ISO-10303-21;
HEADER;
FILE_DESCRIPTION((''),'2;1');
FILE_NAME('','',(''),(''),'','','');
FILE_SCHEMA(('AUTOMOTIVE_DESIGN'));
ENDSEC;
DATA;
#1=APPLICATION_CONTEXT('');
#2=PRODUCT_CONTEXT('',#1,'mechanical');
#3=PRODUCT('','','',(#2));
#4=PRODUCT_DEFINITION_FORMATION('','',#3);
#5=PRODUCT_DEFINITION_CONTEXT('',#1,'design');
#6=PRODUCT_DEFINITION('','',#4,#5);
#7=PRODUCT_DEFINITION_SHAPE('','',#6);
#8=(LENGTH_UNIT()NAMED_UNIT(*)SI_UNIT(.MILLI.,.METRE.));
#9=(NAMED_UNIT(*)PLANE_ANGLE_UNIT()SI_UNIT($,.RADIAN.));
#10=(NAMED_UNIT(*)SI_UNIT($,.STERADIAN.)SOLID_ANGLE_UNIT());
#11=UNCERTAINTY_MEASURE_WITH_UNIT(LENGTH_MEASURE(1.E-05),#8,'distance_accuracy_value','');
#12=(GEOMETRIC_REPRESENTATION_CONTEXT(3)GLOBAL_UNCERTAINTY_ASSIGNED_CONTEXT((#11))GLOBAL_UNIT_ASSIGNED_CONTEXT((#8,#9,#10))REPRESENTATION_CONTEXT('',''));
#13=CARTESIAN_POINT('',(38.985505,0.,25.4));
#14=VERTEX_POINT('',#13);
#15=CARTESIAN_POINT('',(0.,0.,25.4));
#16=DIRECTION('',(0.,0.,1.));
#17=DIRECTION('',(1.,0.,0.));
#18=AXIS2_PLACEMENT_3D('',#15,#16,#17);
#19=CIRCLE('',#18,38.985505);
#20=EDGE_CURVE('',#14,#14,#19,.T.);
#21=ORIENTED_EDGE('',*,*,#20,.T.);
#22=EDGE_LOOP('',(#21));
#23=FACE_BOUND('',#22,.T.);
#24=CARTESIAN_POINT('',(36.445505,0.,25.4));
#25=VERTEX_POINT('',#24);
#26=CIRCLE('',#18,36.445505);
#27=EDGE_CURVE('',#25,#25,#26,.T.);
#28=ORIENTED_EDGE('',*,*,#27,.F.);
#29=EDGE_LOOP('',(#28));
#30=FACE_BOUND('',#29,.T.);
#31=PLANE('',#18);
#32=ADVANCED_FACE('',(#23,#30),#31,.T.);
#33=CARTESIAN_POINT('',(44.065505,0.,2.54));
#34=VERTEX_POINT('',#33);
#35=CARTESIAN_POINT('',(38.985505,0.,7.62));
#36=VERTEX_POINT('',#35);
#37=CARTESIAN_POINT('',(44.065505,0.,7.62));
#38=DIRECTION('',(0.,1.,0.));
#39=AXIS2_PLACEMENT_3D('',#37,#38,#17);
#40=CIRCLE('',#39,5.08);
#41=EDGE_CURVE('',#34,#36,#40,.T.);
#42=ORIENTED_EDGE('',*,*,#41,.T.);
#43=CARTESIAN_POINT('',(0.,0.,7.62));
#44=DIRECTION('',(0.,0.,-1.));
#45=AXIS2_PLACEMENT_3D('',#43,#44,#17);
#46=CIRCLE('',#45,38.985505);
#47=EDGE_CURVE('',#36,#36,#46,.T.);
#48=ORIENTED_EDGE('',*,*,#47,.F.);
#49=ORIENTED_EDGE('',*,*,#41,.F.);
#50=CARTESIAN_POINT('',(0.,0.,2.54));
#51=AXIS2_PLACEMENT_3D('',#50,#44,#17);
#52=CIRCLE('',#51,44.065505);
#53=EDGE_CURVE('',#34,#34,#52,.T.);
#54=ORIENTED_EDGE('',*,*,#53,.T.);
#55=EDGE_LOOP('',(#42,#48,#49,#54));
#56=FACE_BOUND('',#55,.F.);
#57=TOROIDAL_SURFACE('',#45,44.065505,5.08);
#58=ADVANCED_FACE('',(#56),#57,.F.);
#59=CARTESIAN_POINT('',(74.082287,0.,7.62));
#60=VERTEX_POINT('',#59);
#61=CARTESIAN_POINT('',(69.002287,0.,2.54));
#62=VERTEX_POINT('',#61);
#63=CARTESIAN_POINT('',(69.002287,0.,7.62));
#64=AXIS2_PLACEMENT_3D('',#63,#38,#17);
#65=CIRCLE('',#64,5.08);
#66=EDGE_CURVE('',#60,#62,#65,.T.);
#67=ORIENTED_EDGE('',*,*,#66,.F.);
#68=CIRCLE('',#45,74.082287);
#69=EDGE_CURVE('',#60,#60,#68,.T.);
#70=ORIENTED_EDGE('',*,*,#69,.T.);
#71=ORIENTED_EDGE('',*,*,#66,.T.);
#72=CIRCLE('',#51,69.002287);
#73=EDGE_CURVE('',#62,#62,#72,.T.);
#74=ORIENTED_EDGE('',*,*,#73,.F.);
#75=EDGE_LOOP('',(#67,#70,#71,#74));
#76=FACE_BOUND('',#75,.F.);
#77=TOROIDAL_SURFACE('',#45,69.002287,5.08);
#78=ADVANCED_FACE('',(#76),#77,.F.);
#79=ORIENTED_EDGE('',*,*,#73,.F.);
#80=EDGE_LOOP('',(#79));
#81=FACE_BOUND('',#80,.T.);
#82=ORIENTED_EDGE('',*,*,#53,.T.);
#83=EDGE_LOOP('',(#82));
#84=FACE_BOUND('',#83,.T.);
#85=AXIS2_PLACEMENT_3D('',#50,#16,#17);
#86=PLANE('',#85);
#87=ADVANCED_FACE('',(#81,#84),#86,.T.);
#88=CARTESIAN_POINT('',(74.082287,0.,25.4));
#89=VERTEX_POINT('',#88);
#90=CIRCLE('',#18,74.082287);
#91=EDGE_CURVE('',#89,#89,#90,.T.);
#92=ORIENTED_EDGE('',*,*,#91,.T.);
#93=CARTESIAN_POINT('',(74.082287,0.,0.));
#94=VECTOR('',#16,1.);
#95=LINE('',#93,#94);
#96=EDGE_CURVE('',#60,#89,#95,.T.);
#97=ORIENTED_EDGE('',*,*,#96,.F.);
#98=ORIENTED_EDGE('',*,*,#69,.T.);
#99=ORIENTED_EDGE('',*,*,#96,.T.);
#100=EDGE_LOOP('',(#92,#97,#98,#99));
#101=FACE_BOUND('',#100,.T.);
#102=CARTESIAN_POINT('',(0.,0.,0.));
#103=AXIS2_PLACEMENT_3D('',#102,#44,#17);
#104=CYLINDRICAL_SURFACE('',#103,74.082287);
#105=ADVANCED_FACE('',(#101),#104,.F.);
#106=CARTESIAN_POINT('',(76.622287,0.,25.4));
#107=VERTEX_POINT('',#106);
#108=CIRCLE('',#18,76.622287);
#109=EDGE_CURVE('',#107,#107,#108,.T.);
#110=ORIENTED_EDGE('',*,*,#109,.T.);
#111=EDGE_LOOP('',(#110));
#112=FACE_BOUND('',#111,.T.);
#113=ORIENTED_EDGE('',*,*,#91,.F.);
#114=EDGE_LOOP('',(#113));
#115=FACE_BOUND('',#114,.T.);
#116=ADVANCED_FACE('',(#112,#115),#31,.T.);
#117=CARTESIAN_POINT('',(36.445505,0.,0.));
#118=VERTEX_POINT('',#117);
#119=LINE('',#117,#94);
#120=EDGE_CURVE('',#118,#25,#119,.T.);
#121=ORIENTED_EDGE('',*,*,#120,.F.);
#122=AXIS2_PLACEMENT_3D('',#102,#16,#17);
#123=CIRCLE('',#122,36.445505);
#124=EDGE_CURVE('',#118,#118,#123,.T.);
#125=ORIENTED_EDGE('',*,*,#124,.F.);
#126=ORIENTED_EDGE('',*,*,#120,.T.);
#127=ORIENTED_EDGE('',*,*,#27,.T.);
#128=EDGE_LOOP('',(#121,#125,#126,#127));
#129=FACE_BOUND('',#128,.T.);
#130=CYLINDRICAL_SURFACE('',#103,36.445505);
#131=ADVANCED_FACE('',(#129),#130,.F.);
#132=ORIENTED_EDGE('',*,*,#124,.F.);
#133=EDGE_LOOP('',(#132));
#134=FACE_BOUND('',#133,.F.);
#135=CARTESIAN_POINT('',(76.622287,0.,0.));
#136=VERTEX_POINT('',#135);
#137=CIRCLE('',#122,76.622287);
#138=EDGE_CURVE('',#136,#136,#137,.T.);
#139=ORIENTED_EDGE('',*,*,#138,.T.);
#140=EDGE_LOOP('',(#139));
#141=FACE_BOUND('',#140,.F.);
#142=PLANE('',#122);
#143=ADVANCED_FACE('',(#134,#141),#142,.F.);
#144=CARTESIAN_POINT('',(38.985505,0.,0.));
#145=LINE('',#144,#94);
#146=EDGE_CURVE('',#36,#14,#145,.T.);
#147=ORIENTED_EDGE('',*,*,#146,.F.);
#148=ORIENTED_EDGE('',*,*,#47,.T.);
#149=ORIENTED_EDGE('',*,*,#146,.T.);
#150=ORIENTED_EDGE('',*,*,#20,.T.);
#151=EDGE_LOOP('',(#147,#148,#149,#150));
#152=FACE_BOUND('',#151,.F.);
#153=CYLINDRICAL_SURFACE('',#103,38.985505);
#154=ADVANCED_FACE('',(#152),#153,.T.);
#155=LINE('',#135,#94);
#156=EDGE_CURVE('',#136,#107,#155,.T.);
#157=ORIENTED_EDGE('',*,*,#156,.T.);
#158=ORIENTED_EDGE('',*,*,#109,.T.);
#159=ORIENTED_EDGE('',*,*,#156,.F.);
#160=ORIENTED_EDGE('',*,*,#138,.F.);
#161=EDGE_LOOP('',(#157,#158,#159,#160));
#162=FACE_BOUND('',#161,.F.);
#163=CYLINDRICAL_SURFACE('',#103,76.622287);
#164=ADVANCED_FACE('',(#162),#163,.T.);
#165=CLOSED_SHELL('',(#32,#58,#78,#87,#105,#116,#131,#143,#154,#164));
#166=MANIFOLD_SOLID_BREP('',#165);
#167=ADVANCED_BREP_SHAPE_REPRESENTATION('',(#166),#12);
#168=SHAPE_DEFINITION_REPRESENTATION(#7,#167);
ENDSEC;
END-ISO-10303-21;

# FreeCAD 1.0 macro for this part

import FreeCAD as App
import Part
import Sketcher

V = App.Vector


def edges_at(feature, points):
    """Names of the edges that pass closest to the given points."""
    edges = feature.Shape.Edges
    near = lambda p: min(range(len(edges)), key=lambda i: edges[i].distToShape(Part.Vertex(*p))[0])
    return sorted({f"Edge{near(p) + 1}" for p in points})


def faces_at(feature, points):
    """Names of the faces that lie closest to the given points."""
    faces = feature.Shape.Faces
    near = lambda p: min(range(len(faces)), key=lambda i: faces[i].distToShape(Part.Vertex(*p))[0])
    return sorted({f"Face{near(p) + 1}" for p in points})

doc = App.newDocument("Part")
params = doc.addObject("Spreadsheet::Sheet", "Params")
for row, (alias, value) in enumerate([
    ("pad1_length", "1 in"),
    ("thickness_wall", "0.1 in"),
    ("fillet_radius", "0.2 in"),
], start=1):
    params.set(f"A{row}", alias)
    params.set(f"B{row}", "=" + value)
    params.setAlias(f"B{row}", alias)

body = doc.addObject("PartDesign::Body", "Body")

# Sketch on XY plane
sketch1 = body.newObject("Sketcher::SketchObject", "Sketch")
sketch1.AttachmentSupport = (doc.getObject("XY_Plane"), [""])
sketch1.MapMode = "FlatFace"
sketch1.addGeometry([
    Part.Circle(V(0, 0, 0), V(0, 0, 1), 76.622287),
    Part.Circle(V(0, 0, 0), V(0, 0, 1), 36.445505),
], False)
sketch1.addConstraint([
    Sketcher.Constraint("Coincident", 0, 3, -1, 1),
    Sketcher.Constraint("Coincident", 1, 3, -1, 1),
    Sketcher.Constraint("Diameter", 1, 72.891011),
    Sketcher.Constraint("Diameter", 0, 153.244574),
])
pad1 = body.newObject("PartDesign::Pad", "Pad")
pad1.Profile = sketch1
pad1.setExpression("Length", "Params.pad1_length")
doc.recompute()

thickness = body.newObject("PartDesign::Thickness", "Thickness")
thickness.Base = (pad1, faces_at(pad1, [(-30.649, -30.649, 25.4)]))
thickness.setExpression("Value", "Params.thickness_wall")
thickness.Reversed = True
thickness.Join = "Arc"
doc.recompute()

fillet = body.newObject("PartDesign::Fillet", "Fillet")
fillet.Base = (thickness, edges_at(thickness, [(-74.082, 0, 2.54), (-38.986, 0, 2.54)]))
fillet.setExpression("Radius", "Params.fillet_radius")

doc.recompute()
